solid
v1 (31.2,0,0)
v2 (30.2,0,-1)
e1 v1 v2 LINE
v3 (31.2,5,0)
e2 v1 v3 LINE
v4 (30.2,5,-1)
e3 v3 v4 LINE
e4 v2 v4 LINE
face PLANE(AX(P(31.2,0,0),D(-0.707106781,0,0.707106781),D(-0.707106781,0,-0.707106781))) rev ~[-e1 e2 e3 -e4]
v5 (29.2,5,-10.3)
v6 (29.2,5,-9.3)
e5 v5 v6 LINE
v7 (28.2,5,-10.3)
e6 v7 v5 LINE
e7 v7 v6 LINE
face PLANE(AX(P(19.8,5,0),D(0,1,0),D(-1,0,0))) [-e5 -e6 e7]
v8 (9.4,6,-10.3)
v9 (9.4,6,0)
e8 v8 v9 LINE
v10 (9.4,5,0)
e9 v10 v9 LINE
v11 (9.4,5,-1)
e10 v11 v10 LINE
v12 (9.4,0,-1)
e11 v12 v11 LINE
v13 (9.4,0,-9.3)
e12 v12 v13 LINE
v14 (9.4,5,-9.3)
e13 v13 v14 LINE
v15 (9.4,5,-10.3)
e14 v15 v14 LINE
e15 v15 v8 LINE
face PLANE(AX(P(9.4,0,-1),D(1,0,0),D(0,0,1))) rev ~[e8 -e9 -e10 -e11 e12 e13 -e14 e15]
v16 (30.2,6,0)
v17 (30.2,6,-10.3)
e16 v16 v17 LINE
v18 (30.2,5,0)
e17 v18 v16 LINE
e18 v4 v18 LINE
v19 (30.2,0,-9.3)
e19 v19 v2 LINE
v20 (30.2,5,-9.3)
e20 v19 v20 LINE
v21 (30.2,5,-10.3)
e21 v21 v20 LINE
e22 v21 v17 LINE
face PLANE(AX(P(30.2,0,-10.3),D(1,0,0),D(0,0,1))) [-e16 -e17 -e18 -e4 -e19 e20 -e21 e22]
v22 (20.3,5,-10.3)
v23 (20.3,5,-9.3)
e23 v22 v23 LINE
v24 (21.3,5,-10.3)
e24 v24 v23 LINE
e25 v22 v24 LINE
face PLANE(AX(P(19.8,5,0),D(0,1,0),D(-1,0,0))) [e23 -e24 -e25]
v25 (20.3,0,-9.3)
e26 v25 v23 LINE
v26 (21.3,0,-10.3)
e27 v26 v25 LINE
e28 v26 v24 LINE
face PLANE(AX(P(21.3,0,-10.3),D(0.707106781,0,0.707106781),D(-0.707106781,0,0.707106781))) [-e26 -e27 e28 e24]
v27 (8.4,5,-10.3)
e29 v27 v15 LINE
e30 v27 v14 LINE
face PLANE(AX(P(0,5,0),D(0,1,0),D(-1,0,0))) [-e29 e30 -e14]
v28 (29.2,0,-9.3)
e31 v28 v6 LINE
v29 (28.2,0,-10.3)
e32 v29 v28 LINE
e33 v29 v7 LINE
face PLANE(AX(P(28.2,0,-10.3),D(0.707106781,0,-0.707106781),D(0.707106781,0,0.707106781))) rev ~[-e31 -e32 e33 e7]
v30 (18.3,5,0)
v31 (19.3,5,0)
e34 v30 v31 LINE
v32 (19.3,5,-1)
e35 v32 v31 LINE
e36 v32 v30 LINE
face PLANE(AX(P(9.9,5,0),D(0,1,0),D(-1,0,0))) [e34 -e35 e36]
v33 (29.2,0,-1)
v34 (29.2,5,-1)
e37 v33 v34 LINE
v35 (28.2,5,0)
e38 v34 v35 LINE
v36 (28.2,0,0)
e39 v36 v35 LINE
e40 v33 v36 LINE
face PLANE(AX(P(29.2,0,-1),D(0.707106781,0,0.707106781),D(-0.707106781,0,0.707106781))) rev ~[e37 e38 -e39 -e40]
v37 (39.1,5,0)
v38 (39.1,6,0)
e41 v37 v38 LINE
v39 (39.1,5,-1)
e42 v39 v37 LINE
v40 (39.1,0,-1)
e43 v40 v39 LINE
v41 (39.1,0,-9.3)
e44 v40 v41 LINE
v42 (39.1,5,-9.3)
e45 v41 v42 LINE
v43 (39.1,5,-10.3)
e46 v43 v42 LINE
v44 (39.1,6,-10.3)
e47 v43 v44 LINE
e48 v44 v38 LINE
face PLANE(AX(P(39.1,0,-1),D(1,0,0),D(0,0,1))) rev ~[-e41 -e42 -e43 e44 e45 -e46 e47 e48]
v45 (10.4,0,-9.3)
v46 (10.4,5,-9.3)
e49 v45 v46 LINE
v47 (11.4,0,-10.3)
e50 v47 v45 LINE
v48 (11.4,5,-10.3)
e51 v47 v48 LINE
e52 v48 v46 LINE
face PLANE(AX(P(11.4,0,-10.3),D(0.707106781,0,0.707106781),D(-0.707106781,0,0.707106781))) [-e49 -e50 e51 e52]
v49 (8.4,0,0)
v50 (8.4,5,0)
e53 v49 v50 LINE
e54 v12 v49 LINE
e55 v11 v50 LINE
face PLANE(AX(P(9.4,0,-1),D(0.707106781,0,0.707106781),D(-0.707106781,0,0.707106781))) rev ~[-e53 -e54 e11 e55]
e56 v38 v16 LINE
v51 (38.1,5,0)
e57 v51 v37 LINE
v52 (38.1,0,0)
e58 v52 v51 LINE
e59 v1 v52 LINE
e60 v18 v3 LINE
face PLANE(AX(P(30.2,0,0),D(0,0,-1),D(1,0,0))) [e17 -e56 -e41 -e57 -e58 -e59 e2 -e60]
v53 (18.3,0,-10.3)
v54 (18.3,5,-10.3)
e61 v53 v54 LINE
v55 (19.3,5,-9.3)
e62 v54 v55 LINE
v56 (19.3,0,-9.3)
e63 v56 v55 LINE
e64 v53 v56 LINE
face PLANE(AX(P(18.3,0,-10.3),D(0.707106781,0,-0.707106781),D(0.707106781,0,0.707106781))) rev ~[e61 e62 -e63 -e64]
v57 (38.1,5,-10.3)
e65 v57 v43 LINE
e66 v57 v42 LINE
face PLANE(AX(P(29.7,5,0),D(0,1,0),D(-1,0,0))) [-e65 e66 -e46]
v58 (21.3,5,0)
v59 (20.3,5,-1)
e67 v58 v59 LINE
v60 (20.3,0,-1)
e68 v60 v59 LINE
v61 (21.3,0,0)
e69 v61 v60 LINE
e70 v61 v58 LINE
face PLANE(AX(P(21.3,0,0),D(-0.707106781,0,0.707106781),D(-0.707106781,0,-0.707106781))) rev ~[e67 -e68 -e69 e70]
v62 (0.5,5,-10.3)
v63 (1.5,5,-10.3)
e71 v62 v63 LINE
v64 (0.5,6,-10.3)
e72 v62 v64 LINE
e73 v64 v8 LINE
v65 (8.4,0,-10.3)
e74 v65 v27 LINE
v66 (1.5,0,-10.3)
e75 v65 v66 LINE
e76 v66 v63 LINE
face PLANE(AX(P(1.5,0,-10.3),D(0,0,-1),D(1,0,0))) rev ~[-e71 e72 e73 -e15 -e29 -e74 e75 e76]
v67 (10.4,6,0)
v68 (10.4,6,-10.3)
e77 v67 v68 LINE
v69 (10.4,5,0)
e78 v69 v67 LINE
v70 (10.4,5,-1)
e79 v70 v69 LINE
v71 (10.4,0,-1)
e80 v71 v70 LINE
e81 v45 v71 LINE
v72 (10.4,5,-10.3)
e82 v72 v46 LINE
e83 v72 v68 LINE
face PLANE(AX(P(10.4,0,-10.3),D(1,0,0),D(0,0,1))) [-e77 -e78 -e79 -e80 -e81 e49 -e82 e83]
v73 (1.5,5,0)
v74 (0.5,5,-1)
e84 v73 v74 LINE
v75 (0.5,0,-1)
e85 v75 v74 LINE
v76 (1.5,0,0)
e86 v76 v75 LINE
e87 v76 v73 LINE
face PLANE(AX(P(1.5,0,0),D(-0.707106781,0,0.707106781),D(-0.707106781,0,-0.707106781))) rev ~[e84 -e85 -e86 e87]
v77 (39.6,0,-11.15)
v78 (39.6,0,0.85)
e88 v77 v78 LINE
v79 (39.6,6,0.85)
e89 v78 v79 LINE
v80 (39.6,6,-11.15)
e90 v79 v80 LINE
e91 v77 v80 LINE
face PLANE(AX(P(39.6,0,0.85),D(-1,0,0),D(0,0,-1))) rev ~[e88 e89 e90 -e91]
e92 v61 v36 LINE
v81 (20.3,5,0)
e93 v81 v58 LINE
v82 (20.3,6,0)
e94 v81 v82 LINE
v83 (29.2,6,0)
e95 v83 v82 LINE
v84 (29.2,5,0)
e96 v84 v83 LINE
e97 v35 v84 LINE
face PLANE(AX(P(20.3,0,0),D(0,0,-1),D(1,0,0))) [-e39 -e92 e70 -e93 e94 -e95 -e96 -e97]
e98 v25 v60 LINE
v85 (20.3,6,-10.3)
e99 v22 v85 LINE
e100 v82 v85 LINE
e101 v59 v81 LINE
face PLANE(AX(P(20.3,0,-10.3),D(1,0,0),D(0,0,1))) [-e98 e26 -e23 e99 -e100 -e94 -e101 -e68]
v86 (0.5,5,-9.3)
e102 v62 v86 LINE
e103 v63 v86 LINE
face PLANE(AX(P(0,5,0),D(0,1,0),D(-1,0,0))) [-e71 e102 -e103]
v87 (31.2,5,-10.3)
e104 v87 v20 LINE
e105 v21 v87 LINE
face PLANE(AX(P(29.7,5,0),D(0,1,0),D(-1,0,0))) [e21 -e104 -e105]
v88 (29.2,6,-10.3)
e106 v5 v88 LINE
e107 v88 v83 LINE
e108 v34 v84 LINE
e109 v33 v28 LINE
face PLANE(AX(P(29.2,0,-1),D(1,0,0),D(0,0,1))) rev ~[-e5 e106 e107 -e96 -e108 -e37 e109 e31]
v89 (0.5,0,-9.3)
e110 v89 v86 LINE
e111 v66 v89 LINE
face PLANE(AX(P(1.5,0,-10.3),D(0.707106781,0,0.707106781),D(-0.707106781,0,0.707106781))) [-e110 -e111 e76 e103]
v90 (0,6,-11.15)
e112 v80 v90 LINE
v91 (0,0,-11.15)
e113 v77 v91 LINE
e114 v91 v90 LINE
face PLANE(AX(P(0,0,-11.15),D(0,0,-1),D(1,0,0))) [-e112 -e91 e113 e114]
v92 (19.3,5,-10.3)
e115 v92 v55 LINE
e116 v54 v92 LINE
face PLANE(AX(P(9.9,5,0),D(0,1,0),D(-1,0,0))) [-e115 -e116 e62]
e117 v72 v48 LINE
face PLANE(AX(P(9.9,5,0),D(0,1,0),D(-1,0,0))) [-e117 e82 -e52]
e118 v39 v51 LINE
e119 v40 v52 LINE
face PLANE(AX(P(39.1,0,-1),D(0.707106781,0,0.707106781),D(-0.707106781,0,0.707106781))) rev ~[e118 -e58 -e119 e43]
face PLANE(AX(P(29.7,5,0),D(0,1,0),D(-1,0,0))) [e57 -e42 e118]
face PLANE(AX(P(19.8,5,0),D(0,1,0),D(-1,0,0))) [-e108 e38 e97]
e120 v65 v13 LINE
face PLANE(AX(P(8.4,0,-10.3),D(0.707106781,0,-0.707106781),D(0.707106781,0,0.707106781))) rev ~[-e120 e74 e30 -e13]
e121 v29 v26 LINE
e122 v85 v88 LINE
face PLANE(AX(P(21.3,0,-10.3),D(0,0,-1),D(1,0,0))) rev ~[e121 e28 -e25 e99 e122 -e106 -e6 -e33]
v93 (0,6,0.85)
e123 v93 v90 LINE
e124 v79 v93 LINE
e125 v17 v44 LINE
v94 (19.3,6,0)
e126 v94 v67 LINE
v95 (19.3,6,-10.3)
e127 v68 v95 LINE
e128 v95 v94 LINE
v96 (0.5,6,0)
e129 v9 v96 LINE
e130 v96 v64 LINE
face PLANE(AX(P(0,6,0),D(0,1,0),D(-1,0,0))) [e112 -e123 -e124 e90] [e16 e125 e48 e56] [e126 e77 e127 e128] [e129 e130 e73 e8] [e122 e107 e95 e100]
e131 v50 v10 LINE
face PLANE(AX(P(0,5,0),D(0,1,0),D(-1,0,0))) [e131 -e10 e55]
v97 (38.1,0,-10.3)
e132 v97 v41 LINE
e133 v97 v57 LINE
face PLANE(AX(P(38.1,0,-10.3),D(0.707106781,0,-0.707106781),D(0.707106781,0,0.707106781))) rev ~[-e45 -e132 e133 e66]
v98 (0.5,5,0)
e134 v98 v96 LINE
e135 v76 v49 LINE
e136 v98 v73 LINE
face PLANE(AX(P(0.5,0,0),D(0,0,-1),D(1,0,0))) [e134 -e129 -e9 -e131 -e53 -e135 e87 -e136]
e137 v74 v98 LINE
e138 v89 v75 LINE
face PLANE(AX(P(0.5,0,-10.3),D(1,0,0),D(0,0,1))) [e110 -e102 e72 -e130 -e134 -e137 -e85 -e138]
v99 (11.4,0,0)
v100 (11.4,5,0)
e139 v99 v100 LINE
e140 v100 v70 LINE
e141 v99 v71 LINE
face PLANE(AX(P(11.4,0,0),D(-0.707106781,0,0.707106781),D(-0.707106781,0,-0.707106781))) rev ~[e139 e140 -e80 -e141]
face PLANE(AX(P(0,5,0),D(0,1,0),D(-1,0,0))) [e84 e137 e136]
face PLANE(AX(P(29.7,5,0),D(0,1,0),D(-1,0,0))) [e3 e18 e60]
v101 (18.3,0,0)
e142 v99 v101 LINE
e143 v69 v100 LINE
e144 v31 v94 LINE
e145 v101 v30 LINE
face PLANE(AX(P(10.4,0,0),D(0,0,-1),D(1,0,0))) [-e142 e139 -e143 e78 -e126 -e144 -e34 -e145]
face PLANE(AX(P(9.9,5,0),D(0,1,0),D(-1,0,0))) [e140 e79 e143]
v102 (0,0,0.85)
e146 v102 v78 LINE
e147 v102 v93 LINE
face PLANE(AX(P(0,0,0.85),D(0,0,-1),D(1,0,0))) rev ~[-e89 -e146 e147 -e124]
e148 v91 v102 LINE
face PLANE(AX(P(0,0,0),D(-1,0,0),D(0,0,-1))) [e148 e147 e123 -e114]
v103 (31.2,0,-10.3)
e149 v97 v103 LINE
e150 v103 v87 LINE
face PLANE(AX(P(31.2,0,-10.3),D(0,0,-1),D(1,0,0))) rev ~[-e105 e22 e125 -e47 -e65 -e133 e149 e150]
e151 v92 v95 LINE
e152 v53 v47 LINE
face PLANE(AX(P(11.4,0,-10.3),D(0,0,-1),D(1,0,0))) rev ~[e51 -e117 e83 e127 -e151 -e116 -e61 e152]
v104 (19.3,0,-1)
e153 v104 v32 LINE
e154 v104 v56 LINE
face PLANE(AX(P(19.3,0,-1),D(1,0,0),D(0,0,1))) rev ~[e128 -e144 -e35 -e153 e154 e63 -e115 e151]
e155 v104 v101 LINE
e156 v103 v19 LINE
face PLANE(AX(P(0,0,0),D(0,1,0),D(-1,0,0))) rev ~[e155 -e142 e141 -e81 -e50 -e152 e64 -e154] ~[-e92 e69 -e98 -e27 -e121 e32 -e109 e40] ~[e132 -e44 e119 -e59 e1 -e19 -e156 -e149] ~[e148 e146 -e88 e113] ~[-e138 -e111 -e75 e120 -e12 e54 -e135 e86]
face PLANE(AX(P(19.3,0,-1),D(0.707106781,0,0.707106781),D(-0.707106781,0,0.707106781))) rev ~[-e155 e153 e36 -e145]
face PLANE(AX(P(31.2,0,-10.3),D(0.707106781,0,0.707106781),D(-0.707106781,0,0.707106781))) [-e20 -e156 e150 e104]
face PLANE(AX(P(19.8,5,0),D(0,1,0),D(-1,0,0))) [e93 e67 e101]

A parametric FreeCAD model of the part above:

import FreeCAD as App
import Part
import Sketcher
Q = App.Units.Quantity


def add_polygon(sketch, points):
    """Adds a closed chain of lines whose ends are joined by coincident constraints."""
    first, n = sketch.GeometryCount, len(points)
    for a, b in zip(points, points[1:] + points[:1]):
        sketch.addGeometry(Part.LineSegment(App.Vector(*a, 0), App.Vector(*b, 0)), False)
    for i in range(n):
        sketch.addConstraint(Sketcher.Constraint("Coincident", first + i, 2, first + (i + 1) % n, 1))

doc = App.newDocument("Part")
body = doc.addObject("PartDesign::Body", "Body")

# Sketch on XZ plane
sketch1 = body.newObject("Sketcher::SketchObject", "Sketch")
sketch1.AttachmentSupport = (doc.getObject("XZ_Plane"), [""])
sketch1.MapMode = "FlatFace"
add_polygon(sketch1, [(0, 1), (10, 1), (10, -11), (0, -11)])  # lines 0-3
add_polygon(sketch1, [(0, -10), (9, -10), (9, 0), (0, 0)])  # lines 4-7
sketch1.addConstraint([
    Sketcher.Constraint("Horizontal", 0),
    Sketcher.Constraint("Vertical", 1),
    Sketcher.Constraint("Horizontal", 2),
    Sketcher.Constraint("Vertical", 3),
    Sketcher.Constraint("Horizontal", 4),
    Sketcher.Constraint("Vertical", 5),
    Sketcher.Constraint("Horizontal", 6),
    Sketcher.Constraint("Vertical", 7),
    Sketcher.Constraint("PointOnObject", 2, 2, -2),
    Sketcher.Constraint("PointOnObject", 5, 2, -1),
    Sketcher.Constraint("DistanceX", 0, 1, 0, 2, Q("9.9 mm")),
    Sketcher.Constraint("DistanceY", 5, 1, 5, 2, Q("10.3 mm")),
    Sketcher.Constraint("DistanceX", -1, 1, 6, 2, Q("0.5 mm")),
    Sketcher.Constraint("DistanceX", 4, 2, 1, 2, Q("0.5 mm")),
    Sketcher.Constraint("DistanceY", 1, 2, 1, 1, Q("12 mm")),
    Sketcher.Constraint("DistanceY", -1, 1, 0, 2, Q("0.85 mm")),
])
pad1 = body.newObject("PartDesign::Pad", "Pad")
pad1.Profile = sketch1
pad1.Length = 6
pad1.Reversed = True

# Sketch on XZ plane
sketch2 = body.newObject("Sketcher::SketchObject", "Sketch001")
sketch2.AttachmentSupport = (doc.getObject("XZ_Plane"), [""])
sketch2.MapMode = "FlatFace"
add_polygon(sketch2, [(0.5, -1), (0.5, 0), (1.5, 0)])  # lines 0-2
add_polygon(sketch2, [(1.5, -10.3), (0.5, -10.3), (0.5, -9.3)])  # lines 3-5
add_polygon(sketch2, [(9.4, -1), (8.4, 0), (9.4, 0)])  # lines 6-8
add_polygon(sketch2, [(9.4, -10.3), (8.4, -10.3), (9.4, -9.3)])  # lines 9-11
sketch2.addConstraint([
    Sketcher.Constraint("Vertical", 0),
    Sketcher.Constraint("Horizontal", 1),
    Sketcher.Constraint("Horizontal", 3),
    Sketcher.Constraint("Vertical", 4),
    Sketcher.Constraint("Horizontal", 7),
    Sketcher.Constraint("Vertical", 8),
    Sketcher.Constraint("Horizontal", 9),
    Sketcher.Constraint("Vertical", 11),
    Sketcher.Constraint("PointOnObject", 0, 2, -1),
    Sketcher.Constraint("PointOnObject", 6, 2, -1),
    Sketcher.Constraint("Perpendicular", 2, 5),
    Sketcher.Constraint("Parallel", 5, 6),
    Sketcher.Constraint("Perpendicular", 6, 10),
    Sketcher.Constraint("Horizontal", 2, 2, 8, 2),
    Sketcher.Constraint("Horizontal", 5, 2, 9, 2),
    Sketcher.Constraint("Horizontal", 4, 2, 10, 2),
    Sketcher.Constraint("Vertical", 2, 2, 3, 2),
    Sketcher.Constraint("Vertical", 1, 2, 5, 2),
    Sketcher.Constraint("Vertical", 6, 2, 9, 2),
    Sketcher.Constraint("Vertical", 8, 2, 10, 2),
    Sketcher.Constraint("DistanceX", 1, 1, 1, 2, Q("1 mm")),
    Sketcher.Constraint("DistanceX", -1, 1, 0, 2, Q("0.5 mm")),
    Sketcher.Constraint("DistanceY", 3, 2, -1, 1, Q("10.3 mm")),
    Sketcher.Constraint("DistanceX", -1, 1, 6, 2, Q("8.4 mm")),
])
pad2 = body.newObject("PartDesign::Pad", "Pad001")
pad2.Profile = sketch2
pad2.Length = 5
pad2.Reversed = True
doc.recompute()

linearpattern = body.newObject("PartDesign::LinearPattern", "LinearPattern")
linearpattern.Originals = [pad1, pad2]
linearpattern.Direction = (doc.getObject("X_Axis"), [""])
linearpattern.Mode = "offset"
linearpattern.Offset = 9.9
linearpattern.Occurrences = 4
body.Tip = linearpattern

doc.recompute()
